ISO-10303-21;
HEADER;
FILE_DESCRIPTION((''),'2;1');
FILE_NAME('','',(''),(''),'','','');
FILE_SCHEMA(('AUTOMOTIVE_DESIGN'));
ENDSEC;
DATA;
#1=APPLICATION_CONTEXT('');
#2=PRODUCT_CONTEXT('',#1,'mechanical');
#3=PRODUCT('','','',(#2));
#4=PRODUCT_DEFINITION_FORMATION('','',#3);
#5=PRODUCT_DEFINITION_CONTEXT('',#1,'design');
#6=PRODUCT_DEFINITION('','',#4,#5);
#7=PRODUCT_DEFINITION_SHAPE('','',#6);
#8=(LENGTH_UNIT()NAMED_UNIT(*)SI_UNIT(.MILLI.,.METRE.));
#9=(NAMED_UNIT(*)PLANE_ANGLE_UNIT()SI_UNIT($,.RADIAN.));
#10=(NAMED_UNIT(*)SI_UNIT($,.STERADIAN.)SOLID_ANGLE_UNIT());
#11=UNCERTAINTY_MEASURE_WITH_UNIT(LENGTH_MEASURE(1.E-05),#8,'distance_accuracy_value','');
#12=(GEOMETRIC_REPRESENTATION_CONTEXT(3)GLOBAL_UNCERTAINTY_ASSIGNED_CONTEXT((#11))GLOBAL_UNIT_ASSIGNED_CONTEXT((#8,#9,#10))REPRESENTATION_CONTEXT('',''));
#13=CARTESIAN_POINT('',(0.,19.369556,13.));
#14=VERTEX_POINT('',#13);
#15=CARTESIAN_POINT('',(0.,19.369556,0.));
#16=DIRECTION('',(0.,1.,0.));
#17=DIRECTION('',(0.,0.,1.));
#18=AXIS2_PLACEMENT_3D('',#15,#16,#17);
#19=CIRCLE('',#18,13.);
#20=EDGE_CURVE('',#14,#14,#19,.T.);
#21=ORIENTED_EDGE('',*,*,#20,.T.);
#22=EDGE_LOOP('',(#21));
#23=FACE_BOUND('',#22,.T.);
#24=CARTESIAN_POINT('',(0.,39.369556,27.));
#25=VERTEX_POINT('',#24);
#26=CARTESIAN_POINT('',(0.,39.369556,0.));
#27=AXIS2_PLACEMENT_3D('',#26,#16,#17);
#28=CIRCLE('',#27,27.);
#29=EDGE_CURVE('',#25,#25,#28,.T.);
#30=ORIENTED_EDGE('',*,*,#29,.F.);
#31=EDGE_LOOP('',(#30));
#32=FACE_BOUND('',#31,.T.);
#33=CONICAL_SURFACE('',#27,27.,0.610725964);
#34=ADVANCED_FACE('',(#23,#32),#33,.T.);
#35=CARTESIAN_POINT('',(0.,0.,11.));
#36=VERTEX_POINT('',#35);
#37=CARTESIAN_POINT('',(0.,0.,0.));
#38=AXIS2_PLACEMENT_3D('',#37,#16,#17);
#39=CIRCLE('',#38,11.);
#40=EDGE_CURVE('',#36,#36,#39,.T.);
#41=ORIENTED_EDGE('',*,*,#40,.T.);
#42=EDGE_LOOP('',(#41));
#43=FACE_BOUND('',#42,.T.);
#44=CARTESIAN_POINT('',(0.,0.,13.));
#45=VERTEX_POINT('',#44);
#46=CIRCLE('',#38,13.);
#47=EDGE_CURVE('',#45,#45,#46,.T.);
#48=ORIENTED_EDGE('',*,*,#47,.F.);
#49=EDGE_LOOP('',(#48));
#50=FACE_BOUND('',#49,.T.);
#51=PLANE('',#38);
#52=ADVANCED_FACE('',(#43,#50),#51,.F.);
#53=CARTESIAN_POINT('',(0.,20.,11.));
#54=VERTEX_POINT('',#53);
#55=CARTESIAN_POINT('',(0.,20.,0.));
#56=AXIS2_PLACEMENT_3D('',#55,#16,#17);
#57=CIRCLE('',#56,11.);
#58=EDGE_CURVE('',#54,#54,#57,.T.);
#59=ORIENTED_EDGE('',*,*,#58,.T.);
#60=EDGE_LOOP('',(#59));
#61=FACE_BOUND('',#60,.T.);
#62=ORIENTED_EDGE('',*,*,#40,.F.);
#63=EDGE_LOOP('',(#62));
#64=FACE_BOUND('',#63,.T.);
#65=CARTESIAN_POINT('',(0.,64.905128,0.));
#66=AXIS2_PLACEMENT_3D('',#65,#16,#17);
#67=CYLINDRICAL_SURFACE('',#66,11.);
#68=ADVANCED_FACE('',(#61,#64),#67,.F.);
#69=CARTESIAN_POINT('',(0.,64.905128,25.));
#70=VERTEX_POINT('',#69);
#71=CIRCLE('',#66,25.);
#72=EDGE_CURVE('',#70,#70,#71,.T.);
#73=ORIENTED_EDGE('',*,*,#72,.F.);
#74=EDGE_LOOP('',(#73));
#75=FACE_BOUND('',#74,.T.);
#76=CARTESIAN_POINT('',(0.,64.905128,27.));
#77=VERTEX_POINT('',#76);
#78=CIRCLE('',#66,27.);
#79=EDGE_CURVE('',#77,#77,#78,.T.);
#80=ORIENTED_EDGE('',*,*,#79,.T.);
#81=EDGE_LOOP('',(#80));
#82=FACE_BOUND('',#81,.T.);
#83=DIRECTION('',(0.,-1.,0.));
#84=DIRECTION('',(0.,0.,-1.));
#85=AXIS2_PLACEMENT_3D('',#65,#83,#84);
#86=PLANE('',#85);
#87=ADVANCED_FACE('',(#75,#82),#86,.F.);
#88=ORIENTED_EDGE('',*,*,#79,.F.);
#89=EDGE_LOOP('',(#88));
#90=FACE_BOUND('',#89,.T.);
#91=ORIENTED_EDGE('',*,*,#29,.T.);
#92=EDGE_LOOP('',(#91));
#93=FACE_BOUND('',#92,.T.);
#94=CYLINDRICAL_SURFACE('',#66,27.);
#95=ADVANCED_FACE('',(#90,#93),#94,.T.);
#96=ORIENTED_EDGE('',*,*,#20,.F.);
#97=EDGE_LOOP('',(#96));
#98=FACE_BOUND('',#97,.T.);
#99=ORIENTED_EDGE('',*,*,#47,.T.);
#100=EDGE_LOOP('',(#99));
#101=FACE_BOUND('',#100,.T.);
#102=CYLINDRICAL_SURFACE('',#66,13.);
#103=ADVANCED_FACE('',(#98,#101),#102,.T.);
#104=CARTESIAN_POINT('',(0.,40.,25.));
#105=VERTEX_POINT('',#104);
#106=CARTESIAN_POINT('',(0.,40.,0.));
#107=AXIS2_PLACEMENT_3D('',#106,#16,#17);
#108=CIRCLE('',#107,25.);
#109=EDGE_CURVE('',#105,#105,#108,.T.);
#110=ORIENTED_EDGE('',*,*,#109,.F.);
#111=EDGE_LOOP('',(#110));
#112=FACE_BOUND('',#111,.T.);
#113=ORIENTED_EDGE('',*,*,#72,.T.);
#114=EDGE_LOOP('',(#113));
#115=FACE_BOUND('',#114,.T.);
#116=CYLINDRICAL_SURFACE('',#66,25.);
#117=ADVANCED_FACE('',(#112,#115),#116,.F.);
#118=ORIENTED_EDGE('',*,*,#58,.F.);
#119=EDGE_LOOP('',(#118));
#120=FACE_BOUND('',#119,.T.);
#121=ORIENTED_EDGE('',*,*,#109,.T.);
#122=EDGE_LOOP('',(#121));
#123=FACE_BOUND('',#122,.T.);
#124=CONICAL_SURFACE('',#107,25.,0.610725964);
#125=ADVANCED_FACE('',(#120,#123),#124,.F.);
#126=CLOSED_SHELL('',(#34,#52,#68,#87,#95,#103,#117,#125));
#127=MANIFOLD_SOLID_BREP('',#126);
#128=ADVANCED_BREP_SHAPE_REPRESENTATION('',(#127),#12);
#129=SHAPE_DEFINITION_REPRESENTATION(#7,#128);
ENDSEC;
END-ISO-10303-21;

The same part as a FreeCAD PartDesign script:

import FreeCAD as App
import Part
import Sketcher

V = App.Vector

doc = App.newDocument("Part")
params = doc.addObject("Spreadsheet::Sheet", "Params")
for row, (alias, value) in enumerate([
    ("sketch1_width", "2 mm"),
    ("sketch1_height", "20 mm"),
    ("revolution_angle", "360 deg"),
], start=1):
    params.set(f"A{row}", alias)
    params.set(f"B{row}", "=" + value)
    params.setAlias(f"B{row}", alias)

body = doc.addObject("PartDesign::Body", "Body")

sketch1 = doc.addObject("Sketcher::SketchObject", "Sketch")
body.addObject(sketch1)
sketch1.AttachmentSupport = (doc.XY_Plane, [""])
sketch1.MapMode = "FlatFace"
sketch1.addGeometry(Part.LineSegment(V(-13, 0, 0), V(-11, 0, 0)), False)
sketch1.addGeometry(Part.LineSegment(V(-11, 0, 0), V(-11, 20, 0)), False)
sketch1.addGeometry(Part.LineSegment(V(-11, 20, 0), V(-25, 40, 0)), False)
sketch1.addGeometry(Part.LineSegment(V(-25, 40, 0), V(-25, 64.9, 0)), False)
sketch1.addGeometry(Part.LineSegment(V(-25, 64.9, 0), V(-27, 64.9, 0)), False)
sketch1.addGeometry(Part.LineSegment(V(-27, 64.9, 0), V(-27, 39.4, 0)), False)
sketch1.addGeometry(Part.LineSegment(V(-27, 39.4, 0), V(-13, 19.4, 0)), False)
sketch1.addGeometry(Part.LineSegment(V(-13, 19.4, 0), V(-13, 0, 0)), False)
sketch1.addConstraint(Sketcher.Constraint("Coincident", 0, 2, 1, 1))
sketch1.addConstraint(Sketcher.Constraint("Coincident", 1, 2, 2, 1))
sketch1.addConstraint(Sketcher.Constraint("Coincident", 2, 2, 3, 1))
sketch1.addConstraint(Sketcher.Constraint("Coincident", 3, 2, 4, 1))
sketch1.addConstraint(Sketcher.Constraint("Coincident", 4, 2, 5, 1))
sketch1.addConstraint(Sketcher.Constraint("Coincident", 5, 2, 6, 1))
sketch1.addConstraint(Sketcher.Constraint("Coincident", 6, 2, 7, 1))
sketch1.addConstraint(Sketcher.Constraint("Coincident", 7, 2, 0, 1))
sketch1.addConstraint(Sketcher.Constraint("Horizontal", 0))
sketch1.addConstraint(Sketcher.Constraint("Vertical", 1))
sketch1.addConstraint(Sketcher.Constraint("Vertical", 3))
sketch1.addConstraint(Sketcher.Constraint("Horizontal", 4))
sketch1.addConstraint(Sketcher.Constraint("Vertical", 5))
sketch1.addConstraint(Sketcher.Constraint("Vertical", 7))
sketch1.addConstraint(Sketcher.Constraint("PointOnObject", 0, 2, -1))
sketch1.addConstraint(Sketcher.Constraint("Parallel", 2, 6))
sketch1.addConstraint(Sketcher.Constraint("Equal", 0, 4))
sketch1.addConstraint(Sketcher.Constraint("DistanceX", 0, 1, 0, 2, 2.0))
sketch1.addConstraint(Sketcher.Constraint("DistanceY", 1, 1, 1, 2, 20.0))
sketch1.addConstraint(Sketcher.Constraint("DistanceX", 0, 2, -1, 1, 11.0))
sketch1.addConstraint(Sketcher.Constraint("DistanceX", 2, 2, -1, 1, 25.0))
sketch1.addConstraint(Sketcher.Constraint("DistanceY", -1, 1, 2, 2, 40.0))
sketch1.addConstraint(Sketcher.Constraint("DistanceY", 3, 1, 3, 2, 24.905128))
sketch1.addConstraint(Sketcher.Constraint("DistanceY", 5, 2, 5, 1, 25.535572))
sketch1.setExpression("Constraints[17]", "Params.sketch1_width")
sketch1.setExpression("Constraints[18]", "Params.sketch1_height")
revolution = doc.addObject("PartDesign::Revolution", "Revolution")
body.addObject(revolution)
revolution.Profile = sketch1
revolution.ReferenceAxis = (sketch1, ["V_Axis"])
revolution.setExpression("Angle", "Params.revolution_angle")

doc.recompute()
